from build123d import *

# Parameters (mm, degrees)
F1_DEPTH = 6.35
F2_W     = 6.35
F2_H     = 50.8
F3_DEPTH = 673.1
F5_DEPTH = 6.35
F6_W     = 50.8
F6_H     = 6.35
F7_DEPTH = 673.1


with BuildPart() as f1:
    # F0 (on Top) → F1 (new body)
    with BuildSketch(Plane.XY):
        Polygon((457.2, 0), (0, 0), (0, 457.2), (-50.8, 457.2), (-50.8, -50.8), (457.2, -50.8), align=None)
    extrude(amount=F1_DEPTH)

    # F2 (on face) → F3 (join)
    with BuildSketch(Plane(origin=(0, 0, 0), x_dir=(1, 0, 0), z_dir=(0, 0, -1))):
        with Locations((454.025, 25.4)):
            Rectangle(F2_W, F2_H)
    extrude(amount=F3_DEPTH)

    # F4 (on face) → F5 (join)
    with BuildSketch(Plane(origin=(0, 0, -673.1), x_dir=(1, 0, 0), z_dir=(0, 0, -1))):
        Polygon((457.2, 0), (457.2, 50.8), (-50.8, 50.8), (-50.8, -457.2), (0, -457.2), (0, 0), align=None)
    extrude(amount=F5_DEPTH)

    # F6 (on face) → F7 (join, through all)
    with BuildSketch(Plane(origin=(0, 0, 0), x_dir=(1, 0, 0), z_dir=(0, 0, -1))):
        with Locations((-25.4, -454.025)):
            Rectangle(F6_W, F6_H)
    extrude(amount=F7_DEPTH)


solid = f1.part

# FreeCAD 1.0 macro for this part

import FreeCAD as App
import Part
import Sketcher
from FreeCAD import Vector
Q = App.Units.Quantity


def add_polygon(sketch, points):
    """Adds a closed chain of lines whose ends are joined by coincident constraints."""
    first, n = sketch.GeometryCount, len(points)
    for a, b in zip(points, points[1:] + points[:1]):
        sketch.addGeometry(Part.LineSegment(App.Vector(*a, 0), App.Vector(*b, 0)), False)
    for i in range(n):
        sketch.addConstraint(Sketcher.Constraint("Coincident", first + i, 2, first + (i + 1) % n, 1))

doc = App.newDocument("Part")
body = doc.addObject("PartDesign::Body", "Body")

# Sketch on XY plane
sketch1 = body.newObject("Sketcher::SketchObject", "Sketch")
sketch1.AttachmentSupport = (doc.getObject("XY_Plane"), [""])
sketch1.MapMode = "FlatFace"
add_polygon(sketch1, [(457, 0), (0, 0), (0, 457), (-51, 457), (-51, -51), (457, -51)])  # lines 0-5
sketch1.addConstraint([
    Sketcher.Constraint("Horizontal", 0),
    Sketcher.Constraint("Vertical", 1),
    Sketcher.Constraint("Horizontal", 2),
    Sketcher.Constraint("Vertical", 3),
    Sketcher.Constraint("Horizontal", 4),
    Sketcher.Constraint("Vertical", 5),
    Sketcher.Constraint("Coincident", 0, 2, -1, 1),
    Sketcher.Constraint("Equal", 0, 1),
    Sketcher.Constraint("Equal", 4, 3),
    Sketcher.Constraint("DistanceX", 0, 2, 0, 1, Q("18 in")),
    Sketcher.Constraint("DistanceX", 2, 2, 2, 1, Q("2 in")),
])
pad1 = body.newObject("PartDesign::Pad", "Pad")
pad1.Profile = sketch1
pad1.Length = Q("0.25 in")

# Sketch on XY plane
sketch2 = body.newObject("Sketcher::SketchObject", "Sketch001")
sketch2.AttachmentSupport = (doc.getObject("XY_Plane"), [""])
sketch2.MapMode = "FlatFace"
add_polygon(sketch2, [(451, -51), (451, 0), (457, 0), (457, -51)])  # lines 0-3
sketch2.addConstraint([
    Sketcher.Constraint("Vertical", 0),
    Sketcher.Constraint("Horizontal", 1),
    Sketcher.Constraint("Vertical", 2),
    Sketcher.Constraint("Horizontal", 3),
    Sketcher.Constraint("PointOnObject", 0, 2, -1),
    Sketcher.Constraint("DistanceY", 0, 1, 0, 2, Q("2 in")),
    Sketcher.Constraint("DistanceX", -1, 1, 1, 2, Q("18 in")),
    Sketcher.Constraint("DistanceX", 1, 1, 1, 2, Q("0.25 in")),
])
pad2 = body.newObject("PartDesign::Pad", "Pad001")
pad2.Profile = sketch2
pad2.Length = Q("26.5 in")
pad2.Reversed = True

# Sketch on XY plane
sketch3 = body.newObject("Sketcher::SketchObject", "Sketch002")
sketch3.AttachmentSupport = (doc.getObject("XY_Plane"), [""])
sketch3.MapMode = "FlatFace"
sketch3.AttachmentOffset = App.Placement(Vector(0, 0, -26.5 * 25.4), App.Rotation())
add_polygon(sketch3, [(457, 0), (457, -51), (-51, -51), (-51, 457), (0, 457), (0, 0)])  # lines 0-5
sketch3.addConstraint([
    Sketcher.Constraint("Vertical", 0),
    Sketcher.Constraint("Horizontal", 1),
    Sketcher.Constraint("Vertical", 2),
    Sketcher.Constraint("Horizontal", 3),
    Sketcher.Constraint("Vertical", 4),
    Sketcher.Constraint("Horizontal", 5),
    Sketcher.Constraint("Coincident", 4, 2, -1, 1),
    Sketcher.Constraint("Equal", 3, 0),
    Sketcher.Constraint("Equal", 1, 2),
    Sketcher.Constraint("DistanceX", 1, 2, 1, 1, Q("20 in")),
    Sketcher.Constraint("DistanceX", 3, 1, 3, 2, Q("2 in")),
])
pad3 = body.newObject("PartDesign::Pad", "Pad002")
pad3.Profile = sketch3
pad3.Length = Q("0.25 in")
pad3.Reversed = True

# Sketch on XY plane
sketch4 = body.newObject("Sketcher::SketchObject", "Sketch003")
sketch4.AttachmentSupport = (doc.getObject("XY_Plane"), [""])
sketch4.MapMode = "FlatFace"
add_polygon(sketch4, [(-51, 451), (-51, 457), (0, 457), (0, 451)])  # lines 0-3
sketch4.addConstraint([
    Sketcher.Constraint("Vertical", 0),
    Sketcher.Constraint("Horizontal", 1),
    Sketcher.Constraint("Vertical", 2),
    Sketcher.Constraint("Horizontal", 3),
    Sketcher.Constraint("PointOnObject", 1, 2, -2),
    Sketcher.Constraint("DistanceX", 1, 1, 1, 2, Q("2 in")),
    Sketcher.Constraint("DistanceY", -1, 1, 0, 2, Q("18 in")),
    Sketcher.Constraint("DistanceY", 0, 1, 0, 2, Q("0.25 in")),
])
pad4 = body.newObject("PartDesign::Pad", "Pad003")
pad4.Profile = sketch4
pad4.Type = "UpToLast"
pad4.Reversed = True

doc.recompute()
